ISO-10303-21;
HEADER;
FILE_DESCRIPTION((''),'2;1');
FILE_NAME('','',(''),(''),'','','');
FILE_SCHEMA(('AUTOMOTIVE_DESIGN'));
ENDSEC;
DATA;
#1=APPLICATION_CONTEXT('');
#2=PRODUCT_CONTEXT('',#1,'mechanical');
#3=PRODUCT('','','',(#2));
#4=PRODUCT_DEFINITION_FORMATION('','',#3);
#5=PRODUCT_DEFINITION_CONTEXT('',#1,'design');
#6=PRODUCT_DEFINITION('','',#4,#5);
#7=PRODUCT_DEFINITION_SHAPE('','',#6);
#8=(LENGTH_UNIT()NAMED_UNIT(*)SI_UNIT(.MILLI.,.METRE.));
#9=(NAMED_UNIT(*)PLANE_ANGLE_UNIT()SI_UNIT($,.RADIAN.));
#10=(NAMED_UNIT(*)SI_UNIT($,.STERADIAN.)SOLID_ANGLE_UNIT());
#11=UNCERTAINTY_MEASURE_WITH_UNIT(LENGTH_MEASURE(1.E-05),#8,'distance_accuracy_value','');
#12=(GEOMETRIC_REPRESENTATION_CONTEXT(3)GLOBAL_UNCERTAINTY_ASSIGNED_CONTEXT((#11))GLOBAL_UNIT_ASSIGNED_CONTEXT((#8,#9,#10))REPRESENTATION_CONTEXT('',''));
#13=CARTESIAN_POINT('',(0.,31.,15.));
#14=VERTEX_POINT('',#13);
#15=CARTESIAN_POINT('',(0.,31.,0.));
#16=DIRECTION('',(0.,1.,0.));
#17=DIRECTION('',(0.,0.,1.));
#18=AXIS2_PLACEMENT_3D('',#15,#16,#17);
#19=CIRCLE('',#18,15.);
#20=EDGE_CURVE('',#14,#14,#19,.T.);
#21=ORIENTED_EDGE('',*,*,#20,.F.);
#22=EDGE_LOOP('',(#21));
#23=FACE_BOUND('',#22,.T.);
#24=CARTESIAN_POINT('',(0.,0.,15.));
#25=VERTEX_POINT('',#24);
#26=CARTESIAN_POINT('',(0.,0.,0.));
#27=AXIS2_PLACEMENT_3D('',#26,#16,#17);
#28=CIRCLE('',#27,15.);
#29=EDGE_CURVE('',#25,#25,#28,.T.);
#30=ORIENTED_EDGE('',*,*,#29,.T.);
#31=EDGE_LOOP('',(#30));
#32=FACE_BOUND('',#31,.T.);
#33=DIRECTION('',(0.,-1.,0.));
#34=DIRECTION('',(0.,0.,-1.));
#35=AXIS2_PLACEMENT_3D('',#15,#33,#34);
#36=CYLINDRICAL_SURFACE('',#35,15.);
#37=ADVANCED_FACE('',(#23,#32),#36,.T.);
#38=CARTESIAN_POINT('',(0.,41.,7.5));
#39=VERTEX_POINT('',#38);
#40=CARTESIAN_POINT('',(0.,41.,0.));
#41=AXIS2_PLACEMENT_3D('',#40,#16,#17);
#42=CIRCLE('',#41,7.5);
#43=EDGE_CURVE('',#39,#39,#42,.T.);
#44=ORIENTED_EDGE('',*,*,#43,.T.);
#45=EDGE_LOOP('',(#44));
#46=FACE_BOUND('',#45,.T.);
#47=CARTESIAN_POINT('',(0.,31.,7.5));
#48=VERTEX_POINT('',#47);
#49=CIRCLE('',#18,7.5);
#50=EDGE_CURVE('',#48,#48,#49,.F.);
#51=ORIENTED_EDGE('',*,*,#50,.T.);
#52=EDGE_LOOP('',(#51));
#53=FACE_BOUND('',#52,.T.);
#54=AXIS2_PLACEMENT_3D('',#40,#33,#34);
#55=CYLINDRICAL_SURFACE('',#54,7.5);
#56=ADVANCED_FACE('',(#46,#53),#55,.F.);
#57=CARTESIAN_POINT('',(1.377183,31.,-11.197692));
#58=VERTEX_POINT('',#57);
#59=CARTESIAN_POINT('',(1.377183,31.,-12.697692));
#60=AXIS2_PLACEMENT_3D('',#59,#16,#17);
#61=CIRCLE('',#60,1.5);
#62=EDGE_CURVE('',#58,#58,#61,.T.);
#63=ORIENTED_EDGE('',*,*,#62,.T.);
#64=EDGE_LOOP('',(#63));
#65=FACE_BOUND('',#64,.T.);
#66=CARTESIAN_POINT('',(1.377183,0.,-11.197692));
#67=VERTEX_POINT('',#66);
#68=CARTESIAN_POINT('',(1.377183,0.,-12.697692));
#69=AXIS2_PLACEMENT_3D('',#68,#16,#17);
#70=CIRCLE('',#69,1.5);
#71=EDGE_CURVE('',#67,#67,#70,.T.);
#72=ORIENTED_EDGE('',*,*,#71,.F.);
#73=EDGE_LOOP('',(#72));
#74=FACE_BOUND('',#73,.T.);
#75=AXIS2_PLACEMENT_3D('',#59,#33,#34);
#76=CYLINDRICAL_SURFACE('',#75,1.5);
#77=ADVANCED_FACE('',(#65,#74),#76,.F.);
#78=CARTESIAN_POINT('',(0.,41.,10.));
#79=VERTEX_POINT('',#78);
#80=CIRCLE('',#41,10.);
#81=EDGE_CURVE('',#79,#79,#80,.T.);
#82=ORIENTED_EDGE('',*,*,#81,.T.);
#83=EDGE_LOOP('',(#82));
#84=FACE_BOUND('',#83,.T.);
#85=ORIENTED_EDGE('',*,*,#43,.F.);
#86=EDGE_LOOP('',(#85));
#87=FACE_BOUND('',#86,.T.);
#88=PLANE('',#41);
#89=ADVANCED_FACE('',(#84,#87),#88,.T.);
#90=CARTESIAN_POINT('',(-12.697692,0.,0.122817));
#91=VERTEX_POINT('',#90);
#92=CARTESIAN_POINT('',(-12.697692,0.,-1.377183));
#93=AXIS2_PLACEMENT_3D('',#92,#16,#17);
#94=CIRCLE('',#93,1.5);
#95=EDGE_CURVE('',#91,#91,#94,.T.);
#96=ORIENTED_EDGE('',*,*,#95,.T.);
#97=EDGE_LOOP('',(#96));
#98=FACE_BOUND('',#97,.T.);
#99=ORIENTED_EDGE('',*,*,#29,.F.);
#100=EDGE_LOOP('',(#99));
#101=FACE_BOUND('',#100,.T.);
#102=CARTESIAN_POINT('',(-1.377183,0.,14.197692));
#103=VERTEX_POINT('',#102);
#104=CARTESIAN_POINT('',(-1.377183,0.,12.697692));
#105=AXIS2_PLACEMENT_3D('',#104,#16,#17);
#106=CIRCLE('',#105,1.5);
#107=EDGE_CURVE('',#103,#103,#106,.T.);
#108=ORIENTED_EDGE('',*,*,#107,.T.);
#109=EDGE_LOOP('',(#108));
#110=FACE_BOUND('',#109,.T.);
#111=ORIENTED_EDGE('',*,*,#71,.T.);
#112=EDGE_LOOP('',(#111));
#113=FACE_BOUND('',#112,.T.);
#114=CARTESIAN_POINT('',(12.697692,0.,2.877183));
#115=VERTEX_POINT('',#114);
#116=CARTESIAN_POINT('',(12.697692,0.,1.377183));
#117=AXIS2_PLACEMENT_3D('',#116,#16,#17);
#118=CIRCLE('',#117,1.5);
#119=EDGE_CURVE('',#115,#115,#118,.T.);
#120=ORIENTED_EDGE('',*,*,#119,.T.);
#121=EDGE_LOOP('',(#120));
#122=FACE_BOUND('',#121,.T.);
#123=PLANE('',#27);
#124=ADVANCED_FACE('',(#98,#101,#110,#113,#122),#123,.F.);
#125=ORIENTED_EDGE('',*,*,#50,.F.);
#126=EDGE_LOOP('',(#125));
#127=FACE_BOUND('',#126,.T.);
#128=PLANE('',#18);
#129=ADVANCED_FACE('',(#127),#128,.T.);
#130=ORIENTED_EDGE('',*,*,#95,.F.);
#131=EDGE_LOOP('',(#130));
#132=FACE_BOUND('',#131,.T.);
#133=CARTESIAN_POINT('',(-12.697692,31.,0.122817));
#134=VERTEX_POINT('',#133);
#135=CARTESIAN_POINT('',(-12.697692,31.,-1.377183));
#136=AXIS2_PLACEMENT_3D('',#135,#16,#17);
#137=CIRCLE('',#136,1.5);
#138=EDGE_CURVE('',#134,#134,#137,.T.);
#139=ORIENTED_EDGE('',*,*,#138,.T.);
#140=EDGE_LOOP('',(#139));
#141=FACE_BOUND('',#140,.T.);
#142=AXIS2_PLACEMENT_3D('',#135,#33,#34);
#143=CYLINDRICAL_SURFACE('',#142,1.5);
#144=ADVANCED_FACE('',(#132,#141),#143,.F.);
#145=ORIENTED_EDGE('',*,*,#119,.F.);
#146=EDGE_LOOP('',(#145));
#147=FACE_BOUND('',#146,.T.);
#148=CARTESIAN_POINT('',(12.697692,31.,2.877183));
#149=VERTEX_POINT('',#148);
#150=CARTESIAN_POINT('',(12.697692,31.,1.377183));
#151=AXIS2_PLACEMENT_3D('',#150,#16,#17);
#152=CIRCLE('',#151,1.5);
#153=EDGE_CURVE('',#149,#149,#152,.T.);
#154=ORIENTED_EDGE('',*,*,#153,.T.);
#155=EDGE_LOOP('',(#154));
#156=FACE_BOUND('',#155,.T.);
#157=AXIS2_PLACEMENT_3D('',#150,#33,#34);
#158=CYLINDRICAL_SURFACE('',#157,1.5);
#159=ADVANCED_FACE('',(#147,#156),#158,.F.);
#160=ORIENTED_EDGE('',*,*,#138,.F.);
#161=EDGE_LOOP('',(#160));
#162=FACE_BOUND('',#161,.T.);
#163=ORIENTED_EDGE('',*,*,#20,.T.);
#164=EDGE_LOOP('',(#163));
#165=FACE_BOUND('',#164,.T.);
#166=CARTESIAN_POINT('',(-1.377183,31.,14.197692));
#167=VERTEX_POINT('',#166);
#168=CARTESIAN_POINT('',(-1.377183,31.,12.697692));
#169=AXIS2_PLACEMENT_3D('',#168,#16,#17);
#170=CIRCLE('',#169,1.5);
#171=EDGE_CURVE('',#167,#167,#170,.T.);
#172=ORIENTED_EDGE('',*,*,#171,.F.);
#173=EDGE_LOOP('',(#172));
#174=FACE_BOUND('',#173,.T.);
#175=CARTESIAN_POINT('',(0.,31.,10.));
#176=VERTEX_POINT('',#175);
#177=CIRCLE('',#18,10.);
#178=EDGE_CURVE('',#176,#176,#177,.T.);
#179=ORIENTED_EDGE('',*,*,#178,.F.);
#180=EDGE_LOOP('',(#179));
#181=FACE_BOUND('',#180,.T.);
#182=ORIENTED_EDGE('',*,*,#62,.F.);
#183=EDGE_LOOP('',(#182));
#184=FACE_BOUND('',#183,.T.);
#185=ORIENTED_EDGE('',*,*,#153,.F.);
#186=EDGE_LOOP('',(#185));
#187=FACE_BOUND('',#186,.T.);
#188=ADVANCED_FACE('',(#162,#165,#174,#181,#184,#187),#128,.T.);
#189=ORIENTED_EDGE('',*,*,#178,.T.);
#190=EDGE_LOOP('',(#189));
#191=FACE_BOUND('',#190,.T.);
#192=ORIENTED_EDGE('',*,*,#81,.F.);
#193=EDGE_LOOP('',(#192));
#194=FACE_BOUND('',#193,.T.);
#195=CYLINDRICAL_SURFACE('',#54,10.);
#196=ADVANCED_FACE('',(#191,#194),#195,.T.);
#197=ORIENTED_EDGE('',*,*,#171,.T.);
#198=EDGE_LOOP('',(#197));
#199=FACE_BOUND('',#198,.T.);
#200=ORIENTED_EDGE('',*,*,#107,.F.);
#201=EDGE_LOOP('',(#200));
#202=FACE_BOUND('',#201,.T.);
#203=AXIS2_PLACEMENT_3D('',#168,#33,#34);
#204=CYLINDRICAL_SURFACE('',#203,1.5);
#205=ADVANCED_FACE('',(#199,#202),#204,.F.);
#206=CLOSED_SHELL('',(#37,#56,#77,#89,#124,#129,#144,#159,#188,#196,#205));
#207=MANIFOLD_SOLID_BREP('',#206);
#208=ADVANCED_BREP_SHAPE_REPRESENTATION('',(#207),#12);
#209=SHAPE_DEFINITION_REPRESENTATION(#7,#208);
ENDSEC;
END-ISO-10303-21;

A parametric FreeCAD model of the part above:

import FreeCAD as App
import Part
import Sketcher

doc = App.newDocument("Part")
params = doc.addObject("Spreadsheet::Sheet", "Params")
for row, (alias, value) in enumerate([
    ("sketch1_diameter", "30 mm"),
    ("sketch1_diameter2", "3 mm"),
    ("pad1_length", "31 mm"),
    ("sketch2_diameter", "20 mm"),
    ("sketch2_diameter2", "15 mm"),
    ("pad2_length", "10 mm"),
], start=1):
    params.set(f"A{row}", alias)
    params.set(f"B{row}", "=" + value)
    params.setAlias(f"B{row}", alias)

body = doc.addObject("PartDesign::Body", "Body")

sketch1 = doc.addObject("Sketcher::SketchObject", "Sketch")
body.addObject(sketch1)
sketch1.AttachmentSupport = (doc.XZ_Plane, [""])
sketch1.MapMode = "FlatFace"
sketch1.addGeometry([
    Part.Circle(App.Vector(0, 0, 0), App.Vector(0, 0, 1), 15),
    Part.Circle(App.Vector(-12.7, -1.4, 0), App.Vector(0, 0, 1), 1.5),
    Part.Circle(App.Vector(-1.4, 12.7, 0), App.Vector(0, 0, 1), 1.5),
    Part.Circle(App.Vector(1.4, -12.7, 0), App.Vector(0, 0, 1), 1.5),
    Part.Circle(App.Vector(12.7, 1.4, 0), App.Vector(0, 0, 1), 1.5),
], False)
sketch1.addConstraint([
    Sketcher.Constraint("Coincident", 0, 3, -1, 1),
    Sketcher.Constraint("Equal", 1, 2),
    Sketcher.Constraint("Equal", 2, 3),
    Sketcher.Constraint("Equal", 3, 4),
    Sketcher.Constraint("Symmetric", 2, 3, 3, 3, -1, 1),
    Sketcher.Constraint("Symmetric", 1, 3, 4, 3, -1, 1),
    Sketcher.Constraint("Diameter", 0, 30.0),
    Sketcher.Constraint("Diameter", 1, 3.0),
    Sketcher.Constraint("DistanceX", 1, 3, -1, 1, 12.697692),
    Sketcher.Constraint("DistanceY", -1, 1, 2, 3, 12.697692),
    Sketcher.Constraint("DistanceX", 1, 3, 2, 3, 11.320509),
    Sketcher.Constraint("DistanceY", 3, 3, 1, 3, 11.320509),
])
sketch1.setExpression("Constraints[6]", "Params.sketch1_diameter")
sketch1.setExpression("Constraints[7]", "Params.sketch1_diameter2")
pad1 = doc.addObject("PartDesign::Pad", "Pad")
body.addObject(pad1)
pad1.Profile = sketch1
pad1.setExpression("Length", "Params.pad1_length")
pad1.Reversed = True

sketch2 = doc.addObject("Sketcher::SketchObject", "Sketch001")
body.addObject(sketch2)
sketch2.AttachmentSupport = (doc.XZ_Plane, [""])
sketch2.MapMode = "FlatFace"
sketch2.AttachmentOffset = App.Placement(App.Vector(0, 0, -31), App.Rotation())
sketch2.addGeometry([
    Part.Circle(App.Vector(0, 0, 0), App.Vector(0, 0, 1), 10),
    Part.Circle(App.Vector(0, 0, 0), App.Vector(0, 0, 1), 8),
], False)
sketch2.addConstraint([
    Sketcher.Constraint("Coincident", 0, 3, -1, 1),
    Sketcher.Constraint("Coincident", 1, 3, -1, 1),
    Sketcher.Constraint("Diameter", 0, 20.0),
    Sketcher.Constraint("Diameter", 1, 15.0),
])
sketch2.setExpression("Constraints[2]", "Params.sketch2_diameter")
sketch2.setExpression("Constraints[3]", "Params.sketch2_diameter2")
pad2 = doc.addObject("PartDesign::Pad", "Pad001")
body.addObject(pad2)
pad2.Profile = sketch2
pad2.setExpression("Length", "Params.pad2_length")
pad2.Reversed = True

doc.recompute()
